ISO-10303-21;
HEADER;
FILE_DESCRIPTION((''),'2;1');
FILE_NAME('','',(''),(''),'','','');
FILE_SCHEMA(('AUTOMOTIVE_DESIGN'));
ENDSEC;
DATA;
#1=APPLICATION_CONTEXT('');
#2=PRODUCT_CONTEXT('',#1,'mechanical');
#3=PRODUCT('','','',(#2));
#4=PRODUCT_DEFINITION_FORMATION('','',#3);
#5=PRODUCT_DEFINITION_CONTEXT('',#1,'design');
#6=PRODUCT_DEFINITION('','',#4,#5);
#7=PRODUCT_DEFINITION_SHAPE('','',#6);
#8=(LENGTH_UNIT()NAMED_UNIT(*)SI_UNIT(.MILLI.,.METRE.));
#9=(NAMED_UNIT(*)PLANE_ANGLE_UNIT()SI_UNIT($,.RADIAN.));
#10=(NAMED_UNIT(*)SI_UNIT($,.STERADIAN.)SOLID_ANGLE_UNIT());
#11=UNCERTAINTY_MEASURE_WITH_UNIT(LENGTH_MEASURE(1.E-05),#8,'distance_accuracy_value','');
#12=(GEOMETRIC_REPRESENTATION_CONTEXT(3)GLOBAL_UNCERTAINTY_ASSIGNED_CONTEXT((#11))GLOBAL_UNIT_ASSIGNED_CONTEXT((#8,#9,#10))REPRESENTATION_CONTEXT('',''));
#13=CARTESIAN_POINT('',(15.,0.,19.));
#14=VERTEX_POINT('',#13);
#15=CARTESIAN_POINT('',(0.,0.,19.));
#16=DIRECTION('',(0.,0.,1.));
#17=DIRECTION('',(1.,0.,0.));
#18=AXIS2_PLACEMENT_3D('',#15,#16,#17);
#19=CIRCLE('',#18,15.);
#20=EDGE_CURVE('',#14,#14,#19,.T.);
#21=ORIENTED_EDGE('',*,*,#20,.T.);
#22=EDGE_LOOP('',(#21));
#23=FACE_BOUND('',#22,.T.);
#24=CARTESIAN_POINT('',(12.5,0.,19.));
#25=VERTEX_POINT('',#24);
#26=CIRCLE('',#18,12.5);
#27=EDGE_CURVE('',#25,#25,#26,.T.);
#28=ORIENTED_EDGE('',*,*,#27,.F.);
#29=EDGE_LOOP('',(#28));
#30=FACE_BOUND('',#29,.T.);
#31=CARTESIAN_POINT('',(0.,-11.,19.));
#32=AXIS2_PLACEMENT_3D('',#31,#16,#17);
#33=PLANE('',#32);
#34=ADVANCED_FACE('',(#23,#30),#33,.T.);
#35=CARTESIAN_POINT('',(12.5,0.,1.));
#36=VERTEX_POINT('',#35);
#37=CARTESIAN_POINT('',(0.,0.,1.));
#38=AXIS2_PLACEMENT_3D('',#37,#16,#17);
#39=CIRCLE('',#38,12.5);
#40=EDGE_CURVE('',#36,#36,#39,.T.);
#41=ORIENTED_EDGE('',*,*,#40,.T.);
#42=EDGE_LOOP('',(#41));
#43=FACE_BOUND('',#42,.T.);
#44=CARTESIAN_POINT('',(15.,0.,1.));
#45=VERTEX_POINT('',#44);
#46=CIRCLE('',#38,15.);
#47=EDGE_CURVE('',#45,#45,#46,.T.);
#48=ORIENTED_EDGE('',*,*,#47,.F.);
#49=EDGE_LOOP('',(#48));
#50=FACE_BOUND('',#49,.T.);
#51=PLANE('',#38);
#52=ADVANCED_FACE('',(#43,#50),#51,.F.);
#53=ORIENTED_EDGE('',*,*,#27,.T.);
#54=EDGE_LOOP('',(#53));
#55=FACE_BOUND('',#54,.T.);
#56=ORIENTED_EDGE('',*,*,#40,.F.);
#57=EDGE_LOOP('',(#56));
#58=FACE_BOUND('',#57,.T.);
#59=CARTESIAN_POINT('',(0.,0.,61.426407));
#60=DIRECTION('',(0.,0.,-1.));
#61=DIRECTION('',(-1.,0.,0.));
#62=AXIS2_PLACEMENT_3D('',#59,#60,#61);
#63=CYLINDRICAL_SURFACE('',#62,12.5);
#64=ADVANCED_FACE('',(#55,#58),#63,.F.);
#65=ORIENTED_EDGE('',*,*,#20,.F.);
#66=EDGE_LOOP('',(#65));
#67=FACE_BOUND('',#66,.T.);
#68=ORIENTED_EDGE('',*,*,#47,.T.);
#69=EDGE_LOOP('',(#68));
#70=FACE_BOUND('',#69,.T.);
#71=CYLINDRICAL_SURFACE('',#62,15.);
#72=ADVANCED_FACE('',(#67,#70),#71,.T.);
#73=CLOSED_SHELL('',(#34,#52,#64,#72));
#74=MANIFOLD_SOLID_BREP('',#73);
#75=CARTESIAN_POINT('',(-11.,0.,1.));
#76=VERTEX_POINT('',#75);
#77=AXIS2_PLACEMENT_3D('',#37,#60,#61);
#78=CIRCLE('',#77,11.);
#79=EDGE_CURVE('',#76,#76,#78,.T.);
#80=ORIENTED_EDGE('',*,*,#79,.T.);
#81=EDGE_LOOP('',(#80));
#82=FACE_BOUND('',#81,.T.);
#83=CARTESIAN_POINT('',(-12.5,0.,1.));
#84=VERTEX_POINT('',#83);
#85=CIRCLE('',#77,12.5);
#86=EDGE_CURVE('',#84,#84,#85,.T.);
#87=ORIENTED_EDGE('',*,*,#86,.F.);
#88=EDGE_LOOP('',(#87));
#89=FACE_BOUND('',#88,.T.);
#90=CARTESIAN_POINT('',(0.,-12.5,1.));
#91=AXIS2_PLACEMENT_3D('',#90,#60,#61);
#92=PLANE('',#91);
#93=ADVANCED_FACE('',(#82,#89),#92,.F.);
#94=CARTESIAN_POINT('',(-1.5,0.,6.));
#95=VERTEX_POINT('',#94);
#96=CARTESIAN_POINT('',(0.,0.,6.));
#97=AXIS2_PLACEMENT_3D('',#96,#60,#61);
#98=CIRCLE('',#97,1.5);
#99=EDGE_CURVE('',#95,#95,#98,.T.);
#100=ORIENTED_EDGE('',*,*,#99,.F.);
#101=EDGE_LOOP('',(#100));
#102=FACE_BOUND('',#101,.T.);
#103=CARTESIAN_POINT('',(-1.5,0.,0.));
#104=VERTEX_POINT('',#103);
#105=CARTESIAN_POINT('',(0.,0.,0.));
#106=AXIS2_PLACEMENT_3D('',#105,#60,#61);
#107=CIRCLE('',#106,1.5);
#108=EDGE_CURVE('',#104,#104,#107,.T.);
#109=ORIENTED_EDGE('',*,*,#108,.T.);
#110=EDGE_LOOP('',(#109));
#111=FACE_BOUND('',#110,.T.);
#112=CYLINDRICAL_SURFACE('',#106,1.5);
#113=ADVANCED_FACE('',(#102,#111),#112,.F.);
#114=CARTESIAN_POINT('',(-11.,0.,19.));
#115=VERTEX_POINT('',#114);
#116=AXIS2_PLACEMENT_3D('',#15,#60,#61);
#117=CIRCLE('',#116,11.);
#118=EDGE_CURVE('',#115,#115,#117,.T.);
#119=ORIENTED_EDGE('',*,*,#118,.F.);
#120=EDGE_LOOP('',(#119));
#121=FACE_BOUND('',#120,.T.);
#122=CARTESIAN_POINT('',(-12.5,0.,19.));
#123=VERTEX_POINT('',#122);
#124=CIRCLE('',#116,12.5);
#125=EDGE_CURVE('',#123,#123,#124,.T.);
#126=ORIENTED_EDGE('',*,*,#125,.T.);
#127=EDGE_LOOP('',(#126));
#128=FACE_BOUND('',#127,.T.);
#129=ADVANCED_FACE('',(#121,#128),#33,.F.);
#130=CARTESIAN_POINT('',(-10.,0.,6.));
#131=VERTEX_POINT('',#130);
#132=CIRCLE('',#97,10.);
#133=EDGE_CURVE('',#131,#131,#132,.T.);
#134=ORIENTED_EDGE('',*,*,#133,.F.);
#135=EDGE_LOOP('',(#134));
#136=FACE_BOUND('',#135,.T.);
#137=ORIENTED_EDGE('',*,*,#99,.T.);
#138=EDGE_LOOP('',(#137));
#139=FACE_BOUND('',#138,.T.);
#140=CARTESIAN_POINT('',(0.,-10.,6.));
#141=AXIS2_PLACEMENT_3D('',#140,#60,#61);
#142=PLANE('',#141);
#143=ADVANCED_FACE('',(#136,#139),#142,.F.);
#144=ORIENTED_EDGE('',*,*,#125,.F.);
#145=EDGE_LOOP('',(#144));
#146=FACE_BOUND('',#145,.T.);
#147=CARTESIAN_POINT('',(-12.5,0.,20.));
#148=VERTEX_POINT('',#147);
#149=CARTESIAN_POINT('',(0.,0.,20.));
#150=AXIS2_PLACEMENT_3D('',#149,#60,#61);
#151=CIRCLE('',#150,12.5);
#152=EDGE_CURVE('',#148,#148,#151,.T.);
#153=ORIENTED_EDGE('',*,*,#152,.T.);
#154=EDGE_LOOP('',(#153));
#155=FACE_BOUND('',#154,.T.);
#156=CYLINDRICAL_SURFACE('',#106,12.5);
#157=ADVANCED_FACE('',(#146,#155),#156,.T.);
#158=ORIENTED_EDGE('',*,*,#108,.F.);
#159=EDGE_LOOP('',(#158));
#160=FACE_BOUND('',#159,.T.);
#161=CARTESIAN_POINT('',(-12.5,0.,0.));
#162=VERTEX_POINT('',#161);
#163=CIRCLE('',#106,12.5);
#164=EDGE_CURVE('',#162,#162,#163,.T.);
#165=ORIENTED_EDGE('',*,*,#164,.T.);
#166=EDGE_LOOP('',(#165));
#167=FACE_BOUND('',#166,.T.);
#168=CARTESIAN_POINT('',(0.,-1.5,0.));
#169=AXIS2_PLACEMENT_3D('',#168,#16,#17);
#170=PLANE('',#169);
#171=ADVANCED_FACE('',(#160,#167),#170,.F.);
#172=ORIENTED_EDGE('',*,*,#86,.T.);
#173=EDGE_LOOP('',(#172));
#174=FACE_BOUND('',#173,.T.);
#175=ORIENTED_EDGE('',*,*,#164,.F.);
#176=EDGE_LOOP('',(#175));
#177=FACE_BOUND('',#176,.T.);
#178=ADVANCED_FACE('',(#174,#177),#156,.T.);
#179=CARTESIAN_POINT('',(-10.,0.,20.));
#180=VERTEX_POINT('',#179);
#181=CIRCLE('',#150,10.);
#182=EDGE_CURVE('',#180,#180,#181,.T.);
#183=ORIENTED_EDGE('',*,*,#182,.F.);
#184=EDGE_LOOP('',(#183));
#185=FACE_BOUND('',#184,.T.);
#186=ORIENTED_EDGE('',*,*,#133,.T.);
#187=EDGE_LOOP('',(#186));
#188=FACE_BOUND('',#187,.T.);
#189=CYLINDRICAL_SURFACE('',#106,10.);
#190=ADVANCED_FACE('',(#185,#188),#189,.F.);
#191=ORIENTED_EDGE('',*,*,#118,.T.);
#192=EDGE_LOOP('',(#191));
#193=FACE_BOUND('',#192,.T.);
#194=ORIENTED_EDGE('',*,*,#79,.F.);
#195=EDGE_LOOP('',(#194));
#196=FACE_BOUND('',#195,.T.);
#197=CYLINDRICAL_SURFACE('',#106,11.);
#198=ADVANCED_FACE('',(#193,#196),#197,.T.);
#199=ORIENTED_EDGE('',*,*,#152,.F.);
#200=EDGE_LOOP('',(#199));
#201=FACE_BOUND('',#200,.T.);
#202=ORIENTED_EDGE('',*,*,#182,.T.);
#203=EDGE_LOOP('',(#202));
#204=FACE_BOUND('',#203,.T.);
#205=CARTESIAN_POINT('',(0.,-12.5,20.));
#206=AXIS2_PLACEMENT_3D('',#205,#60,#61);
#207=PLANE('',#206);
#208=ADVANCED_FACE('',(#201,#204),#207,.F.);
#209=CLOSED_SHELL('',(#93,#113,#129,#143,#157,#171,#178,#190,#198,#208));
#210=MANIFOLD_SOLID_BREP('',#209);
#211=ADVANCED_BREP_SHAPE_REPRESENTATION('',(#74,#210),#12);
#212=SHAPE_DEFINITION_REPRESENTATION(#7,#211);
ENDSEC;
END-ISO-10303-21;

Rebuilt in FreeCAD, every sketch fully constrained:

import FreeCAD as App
import Part
import Sketcher
from FreeCAD import Vector
Q = App.Units.Quantity


def add_polygon(sketch, points):
    """Adds a closed chain of lines whose ends are joined by coincident constraints."""
    first, n = sketch.GeometryCount, len(points)
    for a, b in zip(points, points[1:] + points[:1]):
        sketch.addGeometry(Part.LineSegment(App.Vector(*a, 0), App.Vector(*b, 0)), False)
    for i in range(n):
        sketch.addConstraint(Sketcher.Constraint("Coincident", first + i, 2, first + (i + 1) % n, 1))

doc = App.newDocument("Part")
body = doc.addObject("PartDesign::Body", "Body")

# Sketch on YZ plane
sketch1 = doc.addObject("Sketcher::SketchObject", "Sketch")
body.addObject(sketch1)
sketch1.AttachmentSupport = (doc.YZ_Plane, [""])
sketch1.MapMode = "FlatFace"
add_polygon(sketch1, [(-12.5, 0), (-1.5, 0), (-1.5, 6), (-10, 6), (-10, 20), (-12.5, 20), (-12.5, 19), (-11, 19), (-11, 1), (-12.5, 1)])  # lines 0-9
sketch1.addConstraint([
    Sketcher.Constraint("Horizontal", 0),
    Sketcher.Constraint("Vertical", 1),
    Sketcher.Constraint("Horizontal", 2),
    Sketcher.Constraint("Vertical", 3),
    Sketcher.Constraint("Horizontal", 4),
    Sketcher.Constraint("Vertical", 5),
    Sketcher.Constraint("Horizontal", 6),
    Sketcher.Constraint("Vertical", 7),
    Sketcher.Constraint("Horizontal", 8),
    Sketcher.Constraint("Vertical", 9),
    Sketcher.Constraint("PointOnObject", 0, 2, -1),
    Sketcher.Constraint("Vertical", 5, 2, 8, 2),
    Sketcher.Constraint("Equal", 5, 9),
    Sketcher.Constraint("DistanceX", 0, 1, 0, 2, Q("11 mm")),
    Sketcher.Constraint("DistanceY", 1, 1, 1, 2, Q("6 mm")),
    Sketcher.Constraint("DistanceY", 3, 1, 3, 2, Q("14 mm")),
    Sketcher.Constraint("DistanceY", 5, 2, 5, 1, Q("1 mm")),
    Sketcher.Constraint("DistanceX", 2, 2, 2, 1, Q("8.5 mm")),
    Sketcher.Constraint("DistanceX", 6, 1, 6, 2, Q("1.5 mm")),
    Sketcher.Constraint("DistanceX", 2, 2, -1, 1, Q("10 mm")),
])
revolution = doc.addObject("PartDesign::Revolution", "Revolution")
body.addObject(revolution)
revolution.Profile = sketch1
revolution.ReferenceAxis = (sketch1, ["V_Axis"])
revolution.Angle = 360
body2 = doc.addObject("PartDesign::Body", "Body001")

# Sketch on XY plane
sketch2 = doc.addObject("Sketcher::SketchObject", "Sketch001")
body2.addObject(sketch2)
sketch2.AttachmentSupport = (doc.getObject("XY_Plane001"), [""])
sketch2.MapMode = "FlatFace"
sketch2.AttachmentOffset = App.Placement(Vector(0, 0, 19), App.Rotation())
sketch2.addGeometry([
    Part.Circle(Vector(0, 0, 0), Vector(0, 0, 1), 15),
    Part.Circle(Vector(0, 0, 0), Vector(0, 0, 1), 12),
], False)
sketch2.addConstraint([
    Sketcher.Constraint("Coincident", 0, 3, -1, 1),
    Sketcher.Constraint("Coincident", 1, 3, -1, 1),
    Sketcher.Constraint("Diameter", 0, Q("30 mm")),
    Sketcher.Constraint("Diameter", 1, Q("25 mm")),
])
pad1 = doc.addObject("PartDesign::Pad", "Pad")
body2.addObject(pad1)
pad1.Profile = sketch2
pad1.Length = 18
pad1.Reversed = True

doc.recompute()
